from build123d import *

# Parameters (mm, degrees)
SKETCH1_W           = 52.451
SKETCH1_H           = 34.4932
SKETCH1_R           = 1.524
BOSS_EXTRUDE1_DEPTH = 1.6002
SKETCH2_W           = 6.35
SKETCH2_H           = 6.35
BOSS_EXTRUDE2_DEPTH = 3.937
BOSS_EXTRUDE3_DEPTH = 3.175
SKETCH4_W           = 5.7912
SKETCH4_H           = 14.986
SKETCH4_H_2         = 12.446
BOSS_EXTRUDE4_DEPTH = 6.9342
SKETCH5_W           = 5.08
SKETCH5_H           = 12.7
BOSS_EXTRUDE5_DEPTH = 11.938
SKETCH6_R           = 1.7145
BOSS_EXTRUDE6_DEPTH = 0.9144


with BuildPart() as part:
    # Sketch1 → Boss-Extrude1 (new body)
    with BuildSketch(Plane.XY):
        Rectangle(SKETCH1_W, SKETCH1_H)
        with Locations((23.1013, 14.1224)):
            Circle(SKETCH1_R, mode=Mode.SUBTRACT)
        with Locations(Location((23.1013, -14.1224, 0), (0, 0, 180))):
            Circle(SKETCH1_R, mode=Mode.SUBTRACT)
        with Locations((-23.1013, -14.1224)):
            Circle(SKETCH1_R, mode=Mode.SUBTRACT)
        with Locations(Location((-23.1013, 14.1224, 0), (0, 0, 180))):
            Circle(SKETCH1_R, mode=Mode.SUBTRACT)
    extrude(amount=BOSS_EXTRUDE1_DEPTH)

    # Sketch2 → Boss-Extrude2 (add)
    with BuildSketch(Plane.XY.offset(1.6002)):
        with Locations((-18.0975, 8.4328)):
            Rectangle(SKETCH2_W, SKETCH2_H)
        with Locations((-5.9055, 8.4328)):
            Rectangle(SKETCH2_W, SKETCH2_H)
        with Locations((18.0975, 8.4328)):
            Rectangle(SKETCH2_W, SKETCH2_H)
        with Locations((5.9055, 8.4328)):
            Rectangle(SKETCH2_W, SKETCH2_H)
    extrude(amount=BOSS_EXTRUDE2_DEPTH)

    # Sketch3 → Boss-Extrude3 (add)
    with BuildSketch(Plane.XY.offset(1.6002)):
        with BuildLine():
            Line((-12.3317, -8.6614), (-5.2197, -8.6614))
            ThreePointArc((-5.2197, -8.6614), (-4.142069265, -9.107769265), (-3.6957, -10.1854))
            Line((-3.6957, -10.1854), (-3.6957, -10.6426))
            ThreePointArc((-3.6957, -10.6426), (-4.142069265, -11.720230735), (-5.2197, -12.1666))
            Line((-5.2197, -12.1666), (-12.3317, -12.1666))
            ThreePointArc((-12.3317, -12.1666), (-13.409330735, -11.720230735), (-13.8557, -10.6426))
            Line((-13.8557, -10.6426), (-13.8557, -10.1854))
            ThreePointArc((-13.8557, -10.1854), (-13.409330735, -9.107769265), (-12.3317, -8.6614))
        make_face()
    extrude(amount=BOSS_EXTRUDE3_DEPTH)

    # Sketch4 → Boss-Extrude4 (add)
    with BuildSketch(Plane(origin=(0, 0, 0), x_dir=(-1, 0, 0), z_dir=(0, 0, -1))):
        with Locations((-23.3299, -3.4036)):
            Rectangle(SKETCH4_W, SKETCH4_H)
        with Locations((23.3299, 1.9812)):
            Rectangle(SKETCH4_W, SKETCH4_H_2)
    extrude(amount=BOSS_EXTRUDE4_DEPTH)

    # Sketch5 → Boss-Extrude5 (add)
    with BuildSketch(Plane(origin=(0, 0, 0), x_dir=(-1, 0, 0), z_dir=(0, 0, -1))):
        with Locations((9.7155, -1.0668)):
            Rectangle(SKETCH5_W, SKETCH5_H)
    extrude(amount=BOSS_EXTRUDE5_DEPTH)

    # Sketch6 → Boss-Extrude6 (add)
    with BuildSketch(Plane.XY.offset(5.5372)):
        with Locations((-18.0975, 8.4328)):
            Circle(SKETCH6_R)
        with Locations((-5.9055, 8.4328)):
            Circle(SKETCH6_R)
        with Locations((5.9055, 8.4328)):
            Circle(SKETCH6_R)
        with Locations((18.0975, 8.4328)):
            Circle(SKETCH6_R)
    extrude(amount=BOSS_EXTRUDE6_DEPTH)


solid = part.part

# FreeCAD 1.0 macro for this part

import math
import FreeCAD as App
import Part
import Sketcher
Q = App.Units.Quantity


def add_polygon(sketch, points):
    """Adds a closed chain of lines whose ends are joined by coincident constraints."""
    first, n = sketch.GeometryCount, len(points)
    for a, b in zip(points, points[1:] + points[:1]):
        sketch.addGeometry(Part.LineSegment(App.Vector(*a, 0), App.Vector(*b, 0)), False)
    for i in range(n):
        sketch.addConstraint(Sketcher.Constraint("Coincident", first + i, 2, first + (i + 1) % n, 1))

doc = App.newDocument("Part")
params = doc.addObject("Spreadsheet::Sheet", "Params")
for row, (alias, value) in enumerate([
    ("sketch1_diameter", "0.12 in"),
    ("sketch1_width", "2.065 in"),
    ("sketch1_height", "1.358 in"),
    ("pad1_length", "0.063 in"),
    ("sketch2_width", "0.25 in"),
    ("pad2_length", "0.155 in"),
    ("sketch3_radius", "0.06 in"),
    ("sketch3_width", "0.28 in"),
    ("sketch3_height", "0.018 in"),
    ("pad3_length", "0.125 in"),
    ("sketch4_height", "0.59 in"),
    ("sketch4_height2", "0.49 in"),
    ("sketch4_width", "0.228 in"),
    ("pad4_length", "0.273 in"),
    ("sketch5_width", "0.2 in"),
    ("sketch5_height", "0.5 in"),
    ("pad5_length", "0.47 in"),
    ("sketch6_diameter", "0.135 in"),
    ("pad6_length", "0.036 in"),
], start=1):
    params.set(f"A{row}", alias)
    params.set(f"B{row}", "=" + value)
    params.setAlias(f"B{row}", alias)

body = doc.addObject("PartDesign::Body", "Body")

sketch1 = body.newObject("Sketcher::SketchObject", "Sketch")
sketch1.AttachmentSupport = (doc.getObject("XY_Plane"), [""])
sketch1.MapMode = "FlatFace"
add_polygon(sketch1, [(-26.2, 17.2), (-26.2, -17.2), (26.2, -17.2), (26.2, 17.2)])
sketch1.addGeometry(Part.Circle(App.Vector(-23.1, -14.1, 0), App.Vector(0, 0, 1), 1.5), False)
sketch1.addGeometry(Part.Circle(App.Vector(23.1, -14.1, 0), App.Vector(0, 0, 1), 1.5), False)
sketch1.addGeometry(Part.Circle(App.Vector(-23.1, 14.1, 0), App.Vector(0, 0, 1), 1.5), False)
sketch1.addGeometry(Part.Circle(App.Vector(23.1, 14.1, 0), App.Vector(0, 0, 1), 1.5), False)
sketch1.addConstraint([
    Sketcher.Constraint("Vertical", 0),
    Sketcher.Constraint("Horizontal", 1),
    Sketcher.Constraint("Vertical", 2),
    Sketcher.Constraint("Horizontal", 3),
    Sketcher.Constraint("Equal", 4, 5),
    Sketcher.Constraint("Equal", 5, 6),
    Sketcher.Constraint("Equal", 6, 7),
    Sketcher.Constraint("Symmetric", 5, 3, 6, 3, -1, 1),
    Sketcher.Constraint("Symmetric", 4, 3, 7, 3, -1, 1),
    Sketcher.Constraint("Symmetric", 0, 2, 2, 2, -1, 1),
    Sketcher.Constraint("Symmetric", 4, 3, 5, 3, -2),
    Sketcher.Constraint("Diameter", 4, Q("0.12 in")),
    Sketcher.Constraint("DistanceX", 1, 1, 1, 2, Q("2.065 in")),
    Sketcher.Constraint("DistanceY", 0, 2, 0, 1, Q("1.358 in")),
    Sketcher.Constraint("DistanceY", 4, 3, -1, 1, Q("0.556 in")),
    Sketcher.Constraint("DistanceX", 4, 3, 5, 3, Q("1.819 in")),
])
sketch1.setExpression("Constraints[15]", "Params.sketch1_diameter")
sketch1.setExpression("Constraints[16]", "Params.sketch1_width")
sketch1.setExpression("Constraints[17]", "Params.sketch1_height")
pad1 = body.newObject("PartDesign::Pad", "Pad")
pad1.Profile = sketch1
pad1.setExpression("Length", "Params.pad1_length")

sketch2 = body.newObject("Sketcher::SketchObject", "Sketch001")
sketch2.AttachmentSupport = (doc.getObject("XY_Plane"), [""])
sketch2.MapMode = "FlatFace"
sketch2.AttachmentOffset = App.Placement(App.Vector(0, 0, 0.063 * 25.4), App.Rotation())
add_polygon(sketch2, [(-21, 12), (-21, 5), (-15, 5), (-15, 12)])
add_polygon(sketch2, [(-9, 12), (-9, 5), (-3, 5), (-3, 12)])
add_polygon(sketch2, [(15, 12), (15, 5), (21, 5), (21, 12)])
add_polygon(sketch2, [(3, 12), (3, 5), (9, 5), (9, 12)])
sketch2.addConstraint([
    Sketcher.Constraint("Vertical", 0),
    Sketcher.Constraint("Horizontal", 1),
    Sketcher.Constraint("Vertical", 2),
    Sketcher.Constraint("Horizontal", 3),
    Sketcher.Constraint("Vertical", 4),
    Sketcher.Constraint("Horizontal", 5),
    Sketcher.Constraint("Vertical", 6),
    Sketcher.Constraint("Horizontal", 7),
    Sketcher.Constraint("Vertical", 8),
    Sketcher.Constraint("Horizontal", 9),
    Sketcher.Constraint("Vertical", 10),
    Sketcher.Constraint("Horizontal", 11),
    Sketcher.Constraint("Vertical", 12),
    Sketcher.Constraint("Horizontal", 13),
    Sketcher.Constraint("Vertical", 14),
    Sketcher.Constraint("Horizontal", 15),
    Sketcher.Constraint("Symmetric", 1, 2, 8, 2, -2),
    Sketcher.Constraint("Symmetric", 3, 2, 10, 2, -2),
    Sketcher.Constraint("Symmetric", 5, 2, 12, 2, -2),
    Sketcher.Constraint("Symmetric", 7, 2, 14, 2, -2),
    Sketcher.Constraint("Horizontal", 1, 2, 4, 2),
    Sketcher.Constraint("Horizontal", 3, 2, 6, 2),
    Sketcher.Constraint("Equal", 3, 5),
    Sketcher.Constraint("Equal", 15, 0),
    Sketcher.Constraint("DistanceX", 1, 1, 1, 2, Q("0.25 in")),
    Sketcher.Constraint("DistanceX", 1, 2, 4, 2, Q("0.23 in")),
    Sketcher.Constraint("DistanceY", -1, 1, 0, 2, Q("0.207 in")),
    Sketcher.Constraint("DistanceX", 5, 2, 8, 2, Q("0.695 in")),
])
sketch2.setExpression("Constraints[40]", "Params.sketch2_width")
pad2 = body.newObject("PartDesign::Pad", "Pad001")
pad2.Profile = sketch2
pad2.setExpression("Length", "Params.pad2_length")

sketch3 = body.newObject("Sketcher::SketchObject", "Sketch002")
sketch3.AttachmentSupport = (doc.getObject("XY_Plane"), [""])
sketch3.MapMode = "FlatFace"
sketch3.AttachmentOffset = App.Placement(App.Vector(0, 0, 0.063 * 25.4), App.Rotation())
sketch3.addGeometry([
    Part.LineSegment(App.Vector(-5.22, -8.66, 0), App.Vector(-12.33, -8.66, 0)),
    Part.ArcOfCircle(Part.Circle(App.Vector(-12.33, -10.19, 0), App.Vector(0, 0, 1), 1.52), math.radians(90), math.radians(180)),
    Part.LineSegment(App.Vector(-13.86, -10.19, 0), App.Vector(-13.86, -10.64, 0)),
    Part.ArcOfCircle(Part.Circle(App.Vector(-12.33, -10.64, 0), App.Vector(0, 0, 1), 1.52), math.radians(180), math.radians(270)),
    Part.LineSegment(App.Vector(-12.33, -12.17, 0), App.Vector(-5.22, -12.17, 0)),
    Part.ArcOfCircle(Part.Circle(App.Vector(-5.22, -10.64, 0), App.Vector(0, 0, 1), 1.52), math.radians(-90), math.radians(0)),
    Part.LineSegment(App.Vector(-3.7, -10.64, 0), App.Vector(-3.7, -10.19, 0)),
    Part.ArcOfCircle(Part.Circle(App.Vector(-5.22, -10.19, 0), App.Vector(0, 0, 1), 1.52), math.radians(0), math.radians(90)),
], False)
sketch3.addConstraint([
    Sketcher.Constraint("Tangent", 0, 2, 1, 1),
    Sketcher.Constraint("Tangent", 1, 2, 2, 1),
    Sketcher.Constraint("Tangent", 2, 2, 3, 1),
    Sketcher.Constraint("Tangent", 3, 2, 4, 1),
    Sketcher.Constraint("Tangent", 4, 2, 5, 1),
    Sketcher.Constraint("Tangent", 5, 2, 6, 1),
    Sketcher.Constraint("Tangent", 6, 2, 7, 1),
    Sketcher.Constraint("Tangent", 7, 2, 0, 1),
    Sketcher.Constraint("Horizontal", 0),
    Sketcher.Constraint("Vertical", 2),
    Sketcher.Constraint("Horizontal", 4),
    Sketcher.Constraint("Vertical", 6),
    Sketcher.Constraint("Equal", 1, 3),
    Sketcher.Constraint("Equal", 3, 5),
    Sketcher.Constraint("Equal", 5, 7),
    Sketcher.Constraint("Radius", 1, Q("0.06 in")),
    Sketcher.Constraint("DistanceX", 0, 2, 0, 1, Q("0.28 in")),
    Sketcher.Constraint("DistanceY", 2, 2, 2, 1, Q("0.018 in")),
    Sketcher.Constraint("DistanceY", 1, 3, -1, 1, Q("0.401 in")),
    Sketcher.Constraint("DistanceX", 1, 3, -1, 1, Q("0.4855 in")),
])
sketch3.setExpression("Constraints[15]", "Params.sketch3_radius")
sketch3.setExpression("Constraints[16]", "Params.sketch3_width")
sketch3.setExpression("Constraints[17]", "Params.sketch3_height")
pad3 = body.newObject("PartDesign::Pad", "Pad002")
pad3.Profile = sketch3
pad3.setExpression("Length", "Params.pad3_length")

sketch4 = body.newObject("Sketcher::SketchObject", "Sketch003")
sketch4.AttachmentSupport = (doc.getObject("XY_Plane"), [""])
sketch4.MapMode = "FlatFace"
add_polygon(sketch4, [(26, 4), (26, -11), (20, -11), (20, 4)])
add_polygon(sketch4, [(-20, 8), (-20, -4), (-26, -4), (-26, 8)])
sketch4.addConstraint([
    Sketcher.Constraint("Vertical", 0),
    Sketcher.Constraint("Horizontal", 1),
    Sketcher.Constraint("Vertical", 2),
    Sketcher.Constraint("Horizontal", 3),
    Sketcher.Constraint("Vertical", 4),
    Sketcher.Constraint("Horizontal", 5),
    Sketcher.Constraint("Vertical", 6),
    Sketcher.Constraint("Horizontal", 7),
    Sketcher.Constraint("Equal", 3, 5),
    Sketcher.Constraint("DistanceY", 0, 2, 0, 1, Q("0.59 in")),
    Sketcher.Constraint("DistanceY", 4, 2, 4, 1, Q("0.49 in")),
    Sketcher.Constraint("DistanceX", 1, 2, 1, 1, Q("0.228 in")),
    Sketcher.Constraint("DistanceY", 0, 2, -1, 1, Q("0.429 in")),
    Sketcher.Constraint("DistanceY", 4, 2, -1, 1, Q("0.167 in")),
    Sketcher.Constraint("DistanceX", 4, 2, 1, 2, Q("1.609 in")),
    Sketcher.Constraint("DistanceX", -1, 1, 0, 2, Q("1.0325 in")),
])
sketch4.setExpression("Constraints[17]", "Params.sketch4_height")
sketch4.setExpression("Constraints[18]", "Params.sketch4_height2")
sketch4.setExpression("Constraints[19]", "Params.sketch4_width")
pad4 = body.newObject("PartDesign::Pad", "Pad003")
pad4.Profile = sketch4
pad4.setExpression("Length", "Params.pad4_length")
pad4.Reversed = True

sketch5 = body.newObject("Sketcher::SketchObject", "Sketch004")
sketch5.AttachmentSupport = (doc.getObject("XY_Plane"), [""])
sketch5.MapMode = "FlatFace"
add_polygon(sketch5, [(-7, 5), (-7, -7), (-12, -7), (-12, 5)])
sketch5.addConstraint([
    Sketcher.Constraint("Vertical", 0),
    Sketcher.Constraint("Horizontal", 1),
    Sketcher.Constraint("Vertical", 2),
    Sketcher.Constraint("Horizontal", 3),
    Sketcher.Constraint("DistanceX", 1, 2, 1, 1, Q("0.2 in")),
    Sketcher.Constraint("DistanceY", 0, 2, 0, 1, Q("0.5 in")),
    Sketcher.Constraint("DistanceY", 0, 2, -1, 1, Q("0.292 in")),
    Sketcher.Constraint("DistanceX", 0, 2, -1, 1, Q("0.2825 in")),
])
sketch5.setExpression("Constraints[8]", "Params.sketch5_width")
sketch5.setExpression("Constraints[9]", "Params.sketch5_height")
pad5 = body.newObject("PartDesign::Pad", "Pad004")
pad5.Profile = sketch5
pad5.setExpression("Length", "Params.pad5_length")
pad5.Reversed = True

sketch6 = body.newObject("Sketcher::SketchObject", "Sketch005")
sketch6.AttachmentSupport = (doc.getObject("XY_Plane"), [""])
sketch6.MapMode = "FlatFace"
sketch6.AttachmentOffset = App.Placement(App.Vector(0, 0, 0.218 * 25.4), App.Rotation())
sketch6.addGeometry([
    Part.Circle(App.Vector(-18.1, 8.4, 0), App.Vector(0, 0, 1), 1.7),
    Part.Circle(App.Vector(-5.9, 8.4, 0), App.Vector(0, 0, 1), 1.7),
    Part.Circle(App.Vector(5.9, 8.4, 0), App.Vector(0, 0, 1), 1.7),
    Part.Circle(App.Vector(18.1, 8.4, 0), App.Vector(0, 0, 1), 1.7),
], False)
sketch6.addConstraint([
    Sketcher.Constraint("Equal", 0, 1),
    Sketcher.Constraint("Equal", 1, 2),
    Sketcher.Constraint("Equal", 2, 3),
    Sketcher.Constraint("Symmetric", 1, 3, 2, 3, -2),
    Sketcher.Constraint("Symmetric", 0, 3, 3, 3, -2),
    Sketcher.Constraint("Horizontal", 0, 3, 1, 3),
    Sketcher.Constraint("Diameter", 0, Q("0.135 in")),
    Sketcher.Constraint("DistanceX", 0, 3, 1, 3, Q("0.48 in")),
    Sketcher.Constraint("DistanceY", -1, 1, 0, 3, Q("0.332 in")),
    Sketcher.Constraint("DistanceX", 1, 3, 2, 3, Q("0.465 in")),
])
sketch6.setExpression("Constraints[6]", "Params.sketch6_diameter")
pad6 = body.newObject("PartDesign::Pad", "Pad005")
pad6.Profile = sketch6
pad6.setExpression("Length", "Params.pad6_length")

doc.recompute()
